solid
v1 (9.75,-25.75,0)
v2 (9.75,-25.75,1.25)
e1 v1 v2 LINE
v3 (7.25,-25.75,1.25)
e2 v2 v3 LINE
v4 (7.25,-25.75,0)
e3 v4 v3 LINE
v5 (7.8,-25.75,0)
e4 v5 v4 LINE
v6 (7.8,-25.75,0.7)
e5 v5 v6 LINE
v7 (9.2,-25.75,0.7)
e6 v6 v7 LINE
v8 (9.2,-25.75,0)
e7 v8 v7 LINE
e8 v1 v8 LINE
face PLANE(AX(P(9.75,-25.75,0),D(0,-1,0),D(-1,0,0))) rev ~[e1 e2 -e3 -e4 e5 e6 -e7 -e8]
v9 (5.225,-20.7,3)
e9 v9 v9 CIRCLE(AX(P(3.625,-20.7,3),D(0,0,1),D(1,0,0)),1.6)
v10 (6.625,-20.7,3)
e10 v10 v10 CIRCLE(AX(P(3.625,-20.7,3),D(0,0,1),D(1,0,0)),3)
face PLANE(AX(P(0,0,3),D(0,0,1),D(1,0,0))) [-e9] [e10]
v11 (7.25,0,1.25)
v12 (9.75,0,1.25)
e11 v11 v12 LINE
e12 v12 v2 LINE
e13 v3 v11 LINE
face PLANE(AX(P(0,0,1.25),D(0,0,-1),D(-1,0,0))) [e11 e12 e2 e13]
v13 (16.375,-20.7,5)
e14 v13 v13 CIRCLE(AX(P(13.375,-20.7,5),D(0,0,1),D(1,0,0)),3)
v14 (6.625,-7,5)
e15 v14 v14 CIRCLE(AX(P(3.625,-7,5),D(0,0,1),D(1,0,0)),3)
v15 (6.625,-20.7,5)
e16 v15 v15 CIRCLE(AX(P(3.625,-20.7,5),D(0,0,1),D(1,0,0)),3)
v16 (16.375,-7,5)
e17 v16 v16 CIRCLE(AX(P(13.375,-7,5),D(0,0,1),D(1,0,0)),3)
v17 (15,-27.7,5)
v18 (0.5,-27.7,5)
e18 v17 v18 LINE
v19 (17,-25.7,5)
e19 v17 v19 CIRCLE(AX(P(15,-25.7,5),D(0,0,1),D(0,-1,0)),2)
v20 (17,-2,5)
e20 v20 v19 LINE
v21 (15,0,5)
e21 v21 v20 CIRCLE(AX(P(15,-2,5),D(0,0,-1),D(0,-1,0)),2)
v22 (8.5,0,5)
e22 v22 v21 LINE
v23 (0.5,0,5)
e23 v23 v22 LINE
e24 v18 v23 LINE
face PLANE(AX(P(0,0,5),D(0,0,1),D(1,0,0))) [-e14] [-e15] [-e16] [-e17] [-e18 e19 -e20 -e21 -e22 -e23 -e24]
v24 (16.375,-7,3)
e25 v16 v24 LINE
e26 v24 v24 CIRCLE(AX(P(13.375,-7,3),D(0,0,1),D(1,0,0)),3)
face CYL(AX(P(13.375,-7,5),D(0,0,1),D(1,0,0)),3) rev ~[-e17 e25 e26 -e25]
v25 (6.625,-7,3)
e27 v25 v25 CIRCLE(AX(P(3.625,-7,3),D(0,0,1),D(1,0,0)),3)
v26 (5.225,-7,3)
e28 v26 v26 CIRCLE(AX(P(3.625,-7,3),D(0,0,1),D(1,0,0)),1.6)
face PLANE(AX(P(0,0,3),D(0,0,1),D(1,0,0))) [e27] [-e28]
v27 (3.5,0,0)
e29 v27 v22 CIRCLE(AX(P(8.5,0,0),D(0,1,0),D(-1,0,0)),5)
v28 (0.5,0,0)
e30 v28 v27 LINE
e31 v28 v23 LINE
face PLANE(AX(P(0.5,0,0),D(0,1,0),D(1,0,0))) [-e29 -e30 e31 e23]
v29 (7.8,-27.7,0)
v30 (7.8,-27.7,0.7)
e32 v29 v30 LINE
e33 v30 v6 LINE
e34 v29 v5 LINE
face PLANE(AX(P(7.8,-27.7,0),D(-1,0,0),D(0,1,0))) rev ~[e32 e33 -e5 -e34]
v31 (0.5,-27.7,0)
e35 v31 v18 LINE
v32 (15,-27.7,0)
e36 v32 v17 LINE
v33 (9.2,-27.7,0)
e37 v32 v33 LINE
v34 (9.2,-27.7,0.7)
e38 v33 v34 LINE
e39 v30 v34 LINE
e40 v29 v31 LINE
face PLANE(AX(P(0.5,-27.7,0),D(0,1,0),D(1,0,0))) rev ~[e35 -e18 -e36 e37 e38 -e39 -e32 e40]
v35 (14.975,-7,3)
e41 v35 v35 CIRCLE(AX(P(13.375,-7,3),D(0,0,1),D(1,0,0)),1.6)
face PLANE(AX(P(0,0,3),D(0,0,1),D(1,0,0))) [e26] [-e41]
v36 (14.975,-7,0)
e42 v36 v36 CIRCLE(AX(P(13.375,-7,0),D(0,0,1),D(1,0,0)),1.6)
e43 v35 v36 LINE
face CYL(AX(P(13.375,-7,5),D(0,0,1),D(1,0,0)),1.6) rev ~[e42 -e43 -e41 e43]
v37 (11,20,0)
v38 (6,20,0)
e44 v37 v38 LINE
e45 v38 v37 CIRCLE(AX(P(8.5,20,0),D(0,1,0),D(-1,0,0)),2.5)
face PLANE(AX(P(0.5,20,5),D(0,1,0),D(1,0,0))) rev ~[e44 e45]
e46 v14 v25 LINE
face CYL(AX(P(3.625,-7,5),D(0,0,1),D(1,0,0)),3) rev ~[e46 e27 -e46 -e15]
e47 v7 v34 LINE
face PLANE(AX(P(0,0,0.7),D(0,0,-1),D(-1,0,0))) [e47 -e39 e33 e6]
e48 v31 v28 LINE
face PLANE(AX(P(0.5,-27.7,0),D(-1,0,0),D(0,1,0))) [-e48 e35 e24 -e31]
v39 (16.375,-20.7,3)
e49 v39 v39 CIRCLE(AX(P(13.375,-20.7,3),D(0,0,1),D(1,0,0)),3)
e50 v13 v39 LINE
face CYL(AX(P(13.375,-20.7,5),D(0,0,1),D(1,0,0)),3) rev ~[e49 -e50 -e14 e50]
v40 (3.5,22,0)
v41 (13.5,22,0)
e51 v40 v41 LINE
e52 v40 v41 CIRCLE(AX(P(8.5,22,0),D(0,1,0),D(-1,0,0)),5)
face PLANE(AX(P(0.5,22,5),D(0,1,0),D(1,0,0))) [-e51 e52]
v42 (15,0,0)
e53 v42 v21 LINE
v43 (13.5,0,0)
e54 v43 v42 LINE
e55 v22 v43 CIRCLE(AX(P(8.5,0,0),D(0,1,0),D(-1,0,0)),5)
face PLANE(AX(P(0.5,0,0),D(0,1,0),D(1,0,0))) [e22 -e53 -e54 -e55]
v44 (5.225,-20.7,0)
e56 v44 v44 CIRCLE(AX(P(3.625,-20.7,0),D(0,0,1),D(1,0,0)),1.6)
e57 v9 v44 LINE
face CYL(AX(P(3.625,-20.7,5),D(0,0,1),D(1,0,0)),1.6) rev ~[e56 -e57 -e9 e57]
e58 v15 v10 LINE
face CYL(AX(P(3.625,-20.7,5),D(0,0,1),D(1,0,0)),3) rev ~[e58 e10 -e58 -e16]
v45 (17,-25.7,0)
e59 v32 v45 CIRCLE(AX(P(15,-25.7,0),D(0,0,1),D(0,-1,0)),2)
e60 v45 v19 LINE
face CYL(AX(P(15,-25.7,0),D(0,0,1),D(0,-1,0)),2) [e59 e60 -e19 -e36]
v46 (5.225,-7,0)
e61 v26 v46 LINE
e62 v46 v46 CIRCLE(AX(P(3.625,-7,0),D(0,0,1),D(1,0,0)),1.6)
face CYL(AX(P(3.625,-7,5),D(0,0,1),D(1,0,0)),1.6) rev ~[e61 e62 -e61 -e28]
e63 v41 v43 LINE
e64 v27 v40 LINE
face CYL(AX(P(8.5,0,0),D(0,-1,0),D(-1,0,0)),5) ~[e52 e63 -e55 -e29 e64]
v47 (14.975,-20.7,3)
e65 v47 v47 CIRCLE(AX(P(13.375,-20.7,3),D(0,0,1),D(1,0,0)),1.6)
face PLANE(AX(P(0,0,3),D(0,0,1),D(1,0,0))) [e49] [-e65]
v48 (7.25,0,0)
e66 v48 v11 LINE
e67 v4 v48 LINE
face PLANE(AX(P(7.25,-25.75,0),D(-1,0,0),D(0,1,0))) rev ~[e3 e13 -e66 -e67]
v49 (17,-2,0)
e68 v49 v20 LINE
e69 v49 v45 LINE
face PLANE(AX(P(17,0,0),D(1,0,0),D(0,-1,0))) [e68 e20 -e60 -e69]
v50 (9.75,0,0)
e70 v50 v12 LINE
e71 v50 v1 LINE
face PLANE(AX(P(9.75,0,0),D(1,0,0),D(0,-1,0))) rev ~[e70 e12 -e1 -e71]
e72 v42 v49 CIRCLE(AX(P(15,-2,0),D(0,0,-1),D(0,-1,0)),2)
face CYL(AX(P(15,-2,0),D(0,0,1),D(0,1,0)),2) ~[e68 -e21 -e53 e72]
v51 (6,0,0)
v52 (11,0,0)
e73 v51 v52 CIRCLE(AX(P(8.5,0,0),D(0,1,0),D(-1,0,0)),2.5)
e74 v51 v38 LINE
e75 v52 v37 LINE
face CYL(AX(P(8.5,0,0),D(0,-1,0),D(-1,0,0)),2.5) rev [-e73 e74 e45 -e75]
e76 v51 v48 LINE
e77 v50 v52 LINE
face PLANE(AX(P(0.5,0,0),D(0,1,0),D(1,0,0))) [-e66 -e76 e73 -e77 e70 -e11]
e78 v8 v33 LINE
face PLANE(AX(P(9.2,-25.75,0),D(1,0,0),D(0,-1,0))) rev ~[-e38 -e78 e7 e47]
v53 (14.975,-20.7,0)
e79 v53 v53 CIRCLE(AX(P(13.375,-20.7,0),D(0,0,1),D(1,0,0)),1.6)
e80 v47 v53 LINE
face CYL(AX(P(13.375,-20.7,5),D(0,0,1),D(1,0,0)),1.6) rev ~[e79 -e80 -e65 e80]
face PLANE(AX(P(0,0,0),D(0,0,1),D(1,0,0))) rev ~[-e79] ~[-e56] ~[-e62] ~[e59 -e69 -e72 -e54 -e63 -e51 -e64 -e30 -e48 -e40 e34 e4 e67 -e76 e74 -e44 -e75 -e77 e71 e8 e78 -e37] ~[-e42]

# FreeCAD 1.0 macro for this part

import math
import FreeCAD as App
import Part
import Sketcher
Q = App.Units.Quantity


def edges_at(feature, points):
    """Names of the edges that pass closest to the given points."""
    edges = feature.Shape.Edges
    near = lambda p: min(range(len(edges)), key=lambda i: edges[i].distToShape(Part.Vertex(*p))[0])
    return sorted({f"Edge{near(p) + 1}" for p in points})


def add_polygon(sketch, points):
    """Adds a closed chain of lines whose ends are joined by coincident constraints."""
    first, n = sketch.GeometryCount, len(points)
    for a, b in zip(points, points[1:] + points[:1]):
        sketch.addGeometry(Part.LineSegment(App.Vector(*a, 0), App.Vector(*b, 0)), False)
    for i in range(n):
        sketch.addConstraint(Sketcher.Constraint("Coincident", first + i, 2, first + (i + 1) % n, 1))

doc = App.newDocument("Part")
body = doc.addObject("PartDesign::Body", "Body")

# Sketch on XY plane
sketch1 = body.newObject("Sketcher::SketchObject", "Sketch")
sketch1.AttachmentSupport = (doc.getObject("XY_Plane"), [""])
sketch1.MapMode = "FlatFace"
add_polygon(sketch1, [(0, -28), (17, -28), (17, 0), (0, 0)])  # lines 0-3
sketch1.addConstraint([
    Sketcher.Constraint("Horizontal", 0),
    Sketcher.Constraint("Vertical", 1),
    Sketcher.Constraint("Horizontal", 2),
    Sketcher.Constraint("Vertical", 3),
    Sketcher.Constraint("PointOnObject", 1, 2, -1),
    Sketcher.Constraint("DistanceX", -1, 1, 2, 2, Q("0.5 mm")),
    Sketcher.Constraint("DistanceX", 0, 1, 0, 2, Q("16.5 mm")),
    Sketcher.Constraint("DistanceY", 1, 1, 1, 2, Q("27.7 mm")),
])
pad1 = body.newObject("PartDesign::Pad", "Pad")
pad1.Profile = sketch1
pad1.Length = 5

# Sketch on XY plane
sketch2 = body.newObject("Sketcher::SketchObject", "Sketch001")
sketch2.AttachmentSupport = (doc.getObject("XY_Plane"), [""])
sketch2.MapMode = "FlatFace"
sketch2.AttachmentOffset = App.Placement(App.Vector(0, 0, 5), App.Rotation())
sketch2.addGeometry([
    Part.Circle(App.Vector(3.6, -7, 0), App.Vector(0, 0, 1), 1.6),
    Part.Circle(App.Vector(13.4, -7, 0), App.Vector(0, 0, 1), 1.6),
    Part.Circle(App.Vector(13.4, -20.7, 0), App.Vector(0, 0, 1), 1.6),
    Part.Circle(App.Vector(3.6, -20.7, 0), App.Vector(0, 0, 1), 1.6),
], False)
sketch2.addConstraint([
    Sketcher.Constraint("Equal", 0, 1),
    Sketcher.Constraint("Equal", 1, 2),
    Sketcher.Constraint("Equal", 2, 3),
    Sketcher.Constraint("Horizontal", 0, 3, 1, 3),
    Sketcher.Constraint("Horizontal", 2, 3, 3, 3),
    Sketcher.Constraint("Vertical", 1, 3, 2, 3),
    Sketcher.Constraint("Vertical", 0, 3, 3, 3),
    Sketcher.Constraint("Diameter", 0, Q("3.2 mm")),
    Sketcher.Constraint("DistanceY", 0, 3, -1, 1, Q("7 mm")),
    Sketcher.Constraint("DistanceY", 2, 3, -1, 1, Q("20.7 mm")),
    Sketcher.Constraint("DistanceX", 0, 3, 1, 3, Q("9.75 mm")),
    Sketcher.Constraint("DistanceX", -1, 1, 0, 3, Q("3.625 mm")),
])
pocket1 = body.newObject("PartDesign::Pocket", "Pocket")
pocket1.Profile = sketch2
pocket1.Length = 10

# Sketch on XY plane
sketch3 = body.newObject("Sketcher::SketchObject", "Sketch002")
sketch3.AttachmentSupport = (doc.getObject("XY_Plane"), [""])
sketch3.MapMode = "FlatFace"
add_polygon(sketch3, [(9.8, -25.8), (7.2, -25.8), (7.2, 0), (9.8, 0)])  # lines 0-3
sketch3.addConstraint([
    Sketcher.Constraint("Horizontal", 0),
    Sketcher.Constraint("Vertical", 1),
    Sketcher.Constraint("Horizontal", 2),
    Sketcher.Constraint("Vertical", 3),
    Sketcher.Constraint("PointOnObject", 1, 2, -1),
    Sketcher.Constraint("DistanceX", 0, 2, 0, 1, Q("2.5 mm")),
    Sketcher.Constraint("DistanceY", 1, 1, 1, 2, Q("25.75 mm")),
    Sketcher.Constraint("DistanceX", -1, 1, 0, 2, Q("7.25 mm")),
])
pocket2 = body.newObject("PartDesign::Pocket", "Pocket001")
pocket2.Profile = sketch3
pocket2.Length = 1.25
pocket2.Reversed = True

# Sketch on XY plane
sketch4 = body.newObject("Sketcher::SketchObject", "Sketch003")
sketch4.AttachmentSupport = (doc.getObject("XY_Plane"), [""])
sketch4.MapMode = "FlatFace"
add_polygon(sketch4, [(9.2, -27.7), (7.8, -27.7), (7.8, -25.8), (9.2, -25.8)])  # lines 0-3
sketch4.addConstraint([
    Sketcher.Constraint("Horizontal", 0),
    Sketcher.Constraint("Vertical", 1),
    Sketcher.Constraint("Horizontal", 2),
    Sketcher.Constraint("Vertical", 3),
    Sketcher.Constraint("DistanceX", 0, 2, 0, 1, Q("1.4 mm")),
    Sketcher.Constraint("DistanceY", 1, 1, 1, 2, Q("1.95 mm")),
    Sketcher.Constraint("DistanceX", -1, 1, 0, 2, Q("7.8 mm")),
    Sketcher.Constraint("DistanceY", 0, 2, -1, 1, Q("27.7 mm")),
])
pocket3 = body.newObject("PartDesign::Pocket", "Pocket002")
pocket3.Profile = sketch4
pocket3.Length = 0.7
pocket3.Reversed = True
doc.recompute()

fillet = body.newObject("PartDesign::Fillet", "Fillet")
fillet.Base = (pocket3, edges_at(pocket3, [(17, 0, 2.5), (17, -27.7, 2.5)]))
fillet.Radius = 2

# Sketch on XZ plane
sketch5 = body.newObject("Sketcher::SketchObject", "Sketch004")
sketch5.AttachmentSupport = (doc.getObject("XZ_Plane"), [""])
sketch5.MapMode = "FlatFace"
sketch5.addGeometry([
    Part.LineSegment(App.Vector(6, 0, 0), App.Vector(3.5, 0, 0)),
    Part.ArcOfCircle(Part.Circle(App.Vector(8.5, 0, 0), App.Vector(0, 0, 1), 5), math.radians(0), math.radians(180)),
    Part.LineSegment(App.Vector(13.5, 0, 0), App.Vector(11, 0, 0)),
    Part.ArcOfCircle(Part.Circle(App.Vector(8.5, 0, 0), App.Vector(0, 0, 1), 2.5), math.radians(0), math.radians(180)),
], False)
sketch5.addConstraint([
    Sketcher.Constraint("Coincident", 0, 2, 1, 2),
    Sketcher.Constraint("Coincident", 1, 1, 2, 1),
    Sketcher.Constraint("Coincident", 2, 2, 3, 1),
    Sketcher.Constraint("Coincident", 3, 2, 0, 1),
    Sketcher.Constraint("Horizontal", 0),
    Sketcher.Constraint("Horizontal", 2),
    Sketcher.Constraint("Coincident", 3, 3, 1, 3),
    Sketcher.Constraint("PointOnObject", 1, 3, -1),
    Sketcher.Constraint("PointOnObject", 0, 2, -1),
    Sketcher.Constraint("PointOnObject", 1, 1, -1),
    Sketcher.Constraint("Radius", 3, Q("2.5 mm")),
    Sketcher.Constraint("DistanceX", 0, 2, 0, 1, Q("2.5 mm")),
    Sketcher.Constraint("DistanceX", -1, 1, 2, 2, Q("11 mm")),
])
pad2 = body.newObject("PartDesign::Pad", "Pad001")
pad2.Profile = sketch5
pad2.Length = 20
pad2.Reversed = True

# Sketch on XY plane
sketch6 = body.newObject("Sketcher::SketchObject", "Sketch005")
sketch6.AttachmentSupport = (doc.getObject("XY_Plane"), [""])
sketch6.MapMode = "FlatFace"
sketch6.AttachmentOffset = App.Placement(App.Vector(0, 0, 5), App.Rotation())
sketch6.addGeometry([
    Part.Circle(App.Vector(3.6, -7, 0), App.Vector(0, 0, 1), 3),  # 0
    Part.Circle(App.Vector(13.4, -7, 0), App.Vector(0, 0, 1), 3),  # 1
    Part.Circle(App.Vector(13.4, -7, 0), App.Vector(0, 0, 1), 1.6),  # 2
    Part.Circle(App.Vector(13.4, -20.7, 0), App.Vector(0, 0, 1), 3),  # 3
    Part.Circle(App.Vector(3.6, -20.7, 0), App.Vector(0, 0, 1), 3),  # 4
], False)
sketch6.addConstraint([
    Sketcher.Constraint("Coincident", 2, 3, 1, 3),
    Sketcher.Constraint("Equal", 0, 1),
    Sketcher.Constraint("Equal", 1, 3),
    Sketcher.Constraint("Equal", 3, 4),
    Sketcher.Constraint("Horizontal", 0, 3, 1, 3),
    Sketcher.Constraint("Horizontal", 3, 3, 4, 3),
    Sketcher.Constraint("Vertical", 2, 3, 3, 3),
    Sketcher.Constraint("Vertical", 0, 3, 4, 3),
    Sketcher.Constraint("Diameter", 0, Q("6 mm")),
    Sketcher.Constraint("Diameter", 2, Q("3.2 mm")),
    Sketcher.Constraint("DistanceY", 0, 3, -1, 1, Q("7 mm")),
    Sketcher.Constraint("DistanceY", 3, 3, -1, 1, Q("20.7 mm")),
    Sketcher.Constraint("DistanceX", 0, 3, 1, 3, Q("9.75 mm")),
    Sketcher.Constraint("DistanceX", -1, 1, 0, 3, Q("3.625 mm")),
])
pocket4 = body.newObject("PartDesign::Pocket", "Pocket003")
pocket4.Profile = sketch6
pocket4.Length = 2

# Sketch on XZ plane
sketch7 = body.newObject("Sketcher::SketchObject", "Sketch006")
sketch7.AttachmentSupport = (doc.getObject("XZ_Plane"), [""])
sketch7.MapMode = "FlatFace"
sketch7.AttachmentOffset = App.Placement(App.Vector(0, 0, -20), App.Rotation())
sketch7.addGeometry([
    Part.ArcOfCircle(Part.Circle(App.Vector(8, 0, 0), App.Vector(0, 0, 1), 5), math.radians(0), math.radians(180)),
    Part.LineSegment(App.Vector(14, 0, 0), App.Vector(4, 0, 0)),
], False)
sketch7.addConstraint([
    Sketcher.Constraint("Coincident", 0, 1, 1, 1),
    Sketcher.Constraint("Coincident", 1, 2, 0, 2),
    Sketcher.Constraint("Horizontal", 1),
    Sketcher.Constraint("PointOnObject", 0, 3, -1),
    Sketcher.Constraint("PointOnObject", 0, 1, -1),
    Sketcher.Constraint("Radius", 0, Q("5 mm")),
    Sketcher.Constraint("DistanceX", -1, 1, 0, 3, Q("8.5 mm")),
])
pad3 = body.newObject("PartDesign::Pad", "Pad002")
pad3.Profile = sketch7
pad3.Length = 2
pad3.Reversed = True

doc.recompute()
